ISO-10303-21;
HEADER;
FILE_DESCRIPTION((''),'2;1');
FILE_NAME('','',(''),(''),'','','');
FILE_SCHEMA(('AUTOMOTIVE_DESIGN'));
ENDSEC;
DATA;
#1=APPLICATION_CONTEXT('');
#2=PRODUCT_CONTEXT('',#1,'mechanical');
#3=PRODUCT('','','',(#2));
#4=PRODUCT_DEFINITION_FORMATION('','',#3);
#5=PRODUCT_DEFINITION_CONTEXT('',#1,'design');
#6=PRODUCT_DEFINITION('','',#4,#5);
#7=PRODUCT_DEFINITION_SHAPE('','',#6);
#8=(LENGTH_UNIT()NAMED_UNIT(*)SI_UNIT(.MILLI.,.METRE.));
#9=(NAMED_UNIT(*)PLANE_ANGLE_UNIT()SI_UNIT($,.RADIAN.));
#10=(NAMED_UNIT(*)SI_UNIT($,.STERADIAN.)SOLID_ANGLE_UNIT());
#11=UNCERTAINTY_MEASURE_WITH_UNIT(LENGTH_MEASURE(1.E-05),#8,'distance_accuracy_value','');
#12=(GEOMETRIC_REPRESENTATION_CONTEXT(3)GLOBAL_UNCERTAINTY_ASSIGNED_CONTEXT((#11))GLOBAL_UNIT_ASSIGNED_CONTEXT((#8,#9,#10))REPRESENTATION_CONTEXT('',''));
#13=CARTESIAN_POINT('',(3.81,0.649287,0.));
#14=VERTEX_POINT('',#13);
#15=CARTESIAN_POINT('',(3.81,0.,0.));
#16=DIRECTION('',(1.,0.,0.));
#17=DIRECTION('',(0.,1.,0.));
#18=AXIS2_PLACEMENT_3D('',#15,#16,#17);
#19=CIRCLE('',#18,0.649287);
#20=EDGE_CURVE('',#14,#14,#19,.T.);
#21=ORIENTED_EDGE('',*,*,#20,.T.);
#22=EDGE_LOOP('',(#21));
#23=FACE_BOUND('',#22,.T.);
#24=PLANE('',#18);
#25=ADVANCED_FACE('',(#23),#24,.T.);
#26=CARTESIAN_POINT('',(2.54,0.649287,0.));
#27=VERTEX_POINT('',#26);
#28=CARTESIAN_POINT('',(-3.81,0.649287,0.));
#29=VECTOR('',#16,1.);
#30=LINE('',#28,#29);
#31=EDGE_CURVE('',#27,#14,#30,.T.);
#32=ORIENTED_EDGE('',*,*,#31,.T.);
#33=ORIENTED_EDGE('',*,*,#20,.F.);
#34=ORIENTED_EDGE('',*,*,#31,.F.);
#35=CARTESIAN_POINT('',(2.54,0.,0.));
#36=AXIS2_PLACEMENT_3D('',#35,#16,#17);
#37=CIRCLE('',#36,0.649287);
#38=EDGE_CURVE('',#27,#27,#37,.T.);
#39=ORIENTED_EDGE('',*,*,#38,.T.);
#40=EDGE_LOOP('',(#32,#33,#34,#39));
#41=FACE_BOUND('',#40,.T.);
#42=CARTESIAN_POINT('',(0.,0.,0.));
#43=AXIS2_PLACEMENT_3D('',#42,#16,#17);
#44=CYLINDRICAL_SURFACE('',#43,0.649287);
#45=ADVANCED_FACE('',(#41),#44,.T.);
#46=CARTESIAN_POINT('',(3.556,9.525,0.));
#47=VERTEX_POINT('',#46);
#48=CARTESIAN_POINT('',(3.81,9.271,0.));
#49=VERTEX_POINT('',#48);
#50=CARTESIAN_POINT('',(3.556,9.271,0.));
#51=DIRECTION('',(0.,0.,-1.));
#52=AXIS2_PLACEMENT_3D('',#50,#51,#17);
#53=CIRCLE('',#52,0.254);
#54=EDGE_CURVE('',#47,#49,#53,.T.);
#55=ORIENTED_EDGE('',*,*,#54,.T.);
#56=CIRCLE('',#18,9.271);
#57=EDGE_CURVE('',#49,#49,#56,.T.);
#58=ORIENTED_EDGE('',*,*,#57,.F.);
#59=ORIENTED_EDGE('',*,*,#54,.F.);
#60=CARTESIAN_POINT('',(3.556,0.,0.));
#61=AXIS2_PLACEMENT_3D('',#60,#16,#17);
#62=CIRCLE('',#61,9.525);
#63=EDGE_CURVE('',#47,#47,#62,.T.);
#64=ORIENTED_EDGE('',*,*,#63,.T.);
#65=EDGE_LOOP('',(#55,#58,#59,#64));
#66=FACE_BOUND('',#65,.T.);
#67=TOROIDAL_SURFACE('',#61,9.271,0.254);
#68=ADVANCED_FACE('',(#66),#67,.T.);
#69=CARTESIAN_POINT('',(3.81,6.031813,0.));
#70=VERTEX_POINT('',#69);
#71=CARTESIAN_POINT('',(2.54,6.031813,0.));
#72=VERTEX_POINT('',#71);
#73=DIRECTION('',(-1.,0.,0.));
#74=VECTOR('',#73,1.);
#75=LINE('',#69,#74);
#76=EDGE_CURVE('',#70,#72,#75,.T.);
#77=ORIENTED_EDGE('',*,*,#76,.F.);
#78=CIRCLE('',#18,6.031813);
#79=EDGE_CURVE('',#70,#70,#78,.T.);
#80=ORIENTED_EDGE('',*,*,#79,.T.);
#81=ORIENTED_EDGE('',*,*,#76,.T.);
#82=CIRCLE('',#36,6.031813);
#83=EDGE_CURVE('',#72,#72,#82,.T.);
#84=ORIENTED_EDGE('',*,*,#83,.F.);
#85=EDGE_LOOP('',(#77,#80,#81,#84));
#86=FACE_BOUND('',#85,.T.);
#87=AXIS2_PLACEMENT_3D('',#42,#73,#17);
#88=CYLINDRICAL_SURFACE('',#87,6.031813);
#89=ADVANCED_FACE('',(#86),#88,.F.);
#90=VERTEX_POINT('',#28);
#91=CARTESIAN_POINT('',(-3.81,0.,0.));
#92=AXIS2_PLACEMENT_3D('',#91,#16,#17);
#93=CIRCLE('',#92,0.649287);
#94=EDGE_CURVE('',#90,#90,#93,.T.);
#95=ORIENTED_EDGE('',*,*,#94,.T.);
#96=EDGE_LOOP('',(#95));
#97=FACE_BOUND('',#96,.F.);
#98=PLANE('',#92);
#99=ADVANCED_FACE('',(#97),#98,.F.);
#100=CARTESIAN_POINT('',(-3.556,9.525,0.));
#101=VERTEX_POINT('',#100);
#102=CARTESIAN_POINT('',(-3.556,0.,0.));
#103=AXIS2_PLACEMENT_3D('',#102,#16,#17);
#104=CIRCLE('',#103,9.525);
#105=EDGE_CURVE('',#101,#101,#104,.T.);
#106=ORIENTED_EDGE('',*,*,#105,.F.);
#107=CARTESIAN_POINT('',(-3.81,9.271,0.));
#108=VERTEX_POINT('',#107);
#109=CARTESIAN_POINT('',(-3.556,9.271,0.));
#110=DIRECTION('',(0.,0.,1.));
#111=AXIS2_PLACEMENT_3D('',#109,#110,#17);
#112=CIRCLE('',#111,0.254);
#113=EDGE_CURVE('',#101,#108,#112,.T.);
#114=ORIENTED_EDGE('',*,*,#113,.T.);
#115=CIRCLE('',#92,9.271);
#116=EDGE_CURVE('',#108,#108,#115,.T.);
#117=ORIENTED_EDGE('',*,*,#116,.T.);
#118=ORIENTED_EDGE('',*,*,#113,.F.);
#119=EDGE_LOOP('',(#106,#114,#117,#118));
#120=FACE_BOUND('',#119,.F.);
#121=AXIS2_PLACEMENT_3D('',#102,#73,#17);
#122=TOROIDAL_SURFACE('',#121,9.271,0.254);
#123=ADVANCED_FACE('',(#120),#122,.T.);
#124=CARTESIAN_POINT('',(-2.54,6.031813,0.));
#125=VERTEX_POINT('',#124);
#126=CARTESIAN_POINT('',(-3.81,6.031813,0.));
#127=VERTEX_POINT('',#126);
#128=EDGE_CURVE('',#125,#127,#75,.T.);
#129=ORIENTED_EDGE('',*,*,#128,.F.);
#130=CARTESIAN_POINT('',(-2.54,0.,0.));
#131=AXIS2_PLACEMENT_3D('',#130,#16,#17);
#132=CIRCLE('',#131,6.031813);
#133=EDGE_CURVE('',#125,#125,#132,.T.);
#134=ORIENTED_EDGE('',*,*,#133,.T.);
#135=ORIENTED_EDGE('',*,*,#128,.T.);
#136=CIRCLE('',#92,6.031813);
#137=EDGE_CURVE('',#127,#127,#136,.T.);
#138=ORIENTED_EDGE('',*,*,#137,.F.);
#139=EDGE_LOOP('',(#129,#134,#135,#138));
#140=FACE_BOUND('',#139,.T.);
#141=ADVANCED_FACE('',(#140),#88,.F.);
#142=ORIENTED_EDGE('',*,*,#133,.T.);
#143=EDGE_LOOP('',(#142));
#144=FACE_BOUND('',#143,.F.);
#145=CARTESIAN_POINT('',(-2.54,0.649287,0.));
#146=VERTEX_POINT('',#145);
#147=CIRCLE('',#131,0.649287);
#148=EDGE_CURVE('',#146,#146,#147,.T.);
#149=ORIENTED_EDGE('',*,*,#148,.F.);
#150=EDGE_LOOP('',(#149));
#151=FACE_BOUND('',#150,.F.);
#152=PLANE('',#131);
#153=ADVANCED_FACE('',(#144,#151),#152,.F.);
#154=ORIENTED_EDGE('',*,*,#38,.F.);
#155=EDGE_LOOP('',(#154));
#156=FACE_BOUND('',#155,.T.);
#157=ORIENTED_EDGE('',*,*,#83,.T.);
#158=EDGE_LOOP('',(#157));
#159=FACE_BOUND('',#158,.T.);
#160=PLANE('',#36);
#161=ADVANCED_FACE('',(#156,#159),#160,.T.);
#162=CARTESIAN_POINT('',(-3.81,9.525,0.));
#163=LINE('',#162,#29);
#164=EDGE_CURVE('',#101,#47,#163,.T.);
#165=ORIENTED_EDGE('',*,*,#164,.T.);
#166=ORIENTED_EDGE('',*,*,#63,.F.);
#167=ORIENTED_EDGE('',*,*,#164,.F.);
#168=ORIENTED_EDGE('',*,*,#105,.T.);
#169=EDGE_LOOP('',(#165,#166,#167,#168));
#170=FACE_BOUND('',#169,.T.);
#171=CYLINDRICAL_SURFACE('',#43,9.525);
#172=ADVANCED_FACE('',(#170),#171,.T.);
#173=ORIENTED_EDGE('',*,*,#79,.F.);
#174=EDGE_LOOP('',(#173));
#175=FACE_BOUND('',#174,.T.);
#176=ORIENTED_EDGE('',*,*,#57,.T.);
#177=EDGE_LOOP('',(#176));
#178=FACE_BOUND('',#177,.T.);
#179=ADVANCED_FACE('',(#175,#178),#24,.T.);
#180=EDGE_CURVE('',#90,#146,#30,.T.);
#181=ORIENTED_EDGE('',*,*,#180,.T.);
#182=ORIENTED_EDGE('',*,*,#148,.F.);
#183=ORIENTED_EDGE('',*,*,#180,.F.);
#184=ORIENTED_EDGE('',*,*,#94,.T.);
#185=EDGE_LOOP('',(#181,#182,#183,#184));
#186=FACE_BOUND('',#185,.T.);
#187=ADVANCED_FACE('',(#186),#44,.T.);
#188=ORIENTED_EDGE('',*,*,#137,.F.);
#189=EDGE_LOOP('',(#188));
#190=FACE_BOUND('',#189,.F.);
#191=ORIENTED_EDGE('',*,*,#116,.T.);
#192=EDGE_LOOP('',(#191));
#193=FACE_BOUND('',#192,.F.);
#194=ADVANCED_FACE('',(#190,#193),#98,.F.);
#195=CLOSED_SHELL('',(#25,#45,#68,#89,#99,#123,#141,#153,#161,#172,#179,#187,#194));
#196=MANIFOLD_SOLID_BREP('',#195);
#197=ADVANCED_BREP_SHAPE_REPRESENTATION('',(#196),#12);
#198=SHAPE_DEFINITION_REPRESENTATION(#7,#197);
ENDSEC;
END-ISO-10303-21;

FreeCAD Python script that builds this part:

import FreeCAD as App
import Part
import Sketcher
Q = App.Units.Quantity


def edges_at(feature, points):
    """Names of the edges that pass closest to the given points."""
    edges = feature.Shape.Edges
    near = lambda p: min(range(len(edges)), key=lambda i: edges[i].distToShape(Part.Vertex(*p))[0])
    return sorted({f"Edge{near(p) + 1}" for p in points})

doc = App.newDocument("Part")
body = doc.addObject("PartDesign::Body", "Body")

# Sketch on YZ plane
sketch1 = body.newObject("Sketcher::SketchObject", "Sketch")
sketch1.AttachmentSupport = (doc.getObject("YZ_Plane"), [""])
sketch1.MapMode = "FlatFace"
sketch1.addGeometry(Part.Circle(App.Vector(0, 0, 0), App.Vector(0, 0, 1), 0.649287), False)
sketch1.addConstraint(Sketcher.Constraint("Coincident", 0, 3, -1, 1))
sketch1.addConstraint(Sketcher.Constraint("Diameter", 0, Q("1.298574 mm")))
pad1 = body.newObject("PartDesign::Pad", "Pad")
pad1.Profile = sketch1
pad1.Length = Q("0.3 in")
pad1.Midplane = True

# Sketch on YZ plane
sketch2 = body.newObject("Sketcher::SketchObject", "Sketch001")
sketch2.AttachmentSupport = (doc.getObject("YZ_Plane"), [""])
sketch2.MapMode = "FlatFace"
sketch2.addGeometry(Part.Circle(App.Vector(0, 0, 0), App.Vector(0, 0, 1), 6.031813), False)
sketch2.addGeometry(Part.Circle(App.Vector(0, 0, 0), App.Vector(0, 0, 1), 0.649287), False)
sketch2.addConstraint(Sketcher.Constraint("Coincident", 0, 3, -1, 1))
sketch2.addConstraint(Sketcher.Constraint("Coincident", 1, 3, -1, 1))
sketch2.addConstraint(Sketcher.Constraint("Diameter", 0, Q("12.063626 mm")))
sketch2.addConstraint(Sketcher.Constraint("Diameter", 1, Q("1.298574 mm")))
pad2 = body.newObject("PartDesign::Pad", "Pad001")
pad2.Profile = sketch2
pad2.Length = Q("0.2 in")
pad2.Midplane = True

# Sketch on YZ plane
sketch3 = body.newObject("Sketcher::SketchObject", "Sketch002")
sketch3.AttachmentSupport = (doc.getObject("YZ_Plane"), [""])
sketch3.MapMode = "FlatFace"
sketch3.addGeometry(Part.Circle(App.Vector(0, 0, 0), App.Vector(0, 0, 1), 9.525), False)
sketch3.addGeometry(Part.Circle(App.Vector(0, 0, 0), App.Vector(0, 0, 1), 6.031813), False)
sketch3.addConstraint(Sketcher.Constraint("Coincident", 0, 3, -1, 1))
sketch3.addConstraint(Sketcher.Constraint("Coincident", 1, 3, -1, 1))
sketch3.addConstraint(Sketcher.Constraint("Diameter", 0, Q("0.75 in")))
sketch3.addConstraint(Sketcher.Constraint("Diameter", 1, Q("12.063626 mm")))
pad3 = body.newObject("PartDesign::Pad", "Pad002")
pad3.Profile = sketch3
pad3.Length = Q("0.3 in")
pad3.Midplane = True
doc.recompute()

fillet = body.newObject("PartDesign::Fillet", "Fillet")
fillet.Base = (pad3, edges_at(pad3, [(3.81, -9.525, 0), (-3.81, -9.525, 0)]))
fillet.Radius = Q("0.01 in")

doc.recompute()
